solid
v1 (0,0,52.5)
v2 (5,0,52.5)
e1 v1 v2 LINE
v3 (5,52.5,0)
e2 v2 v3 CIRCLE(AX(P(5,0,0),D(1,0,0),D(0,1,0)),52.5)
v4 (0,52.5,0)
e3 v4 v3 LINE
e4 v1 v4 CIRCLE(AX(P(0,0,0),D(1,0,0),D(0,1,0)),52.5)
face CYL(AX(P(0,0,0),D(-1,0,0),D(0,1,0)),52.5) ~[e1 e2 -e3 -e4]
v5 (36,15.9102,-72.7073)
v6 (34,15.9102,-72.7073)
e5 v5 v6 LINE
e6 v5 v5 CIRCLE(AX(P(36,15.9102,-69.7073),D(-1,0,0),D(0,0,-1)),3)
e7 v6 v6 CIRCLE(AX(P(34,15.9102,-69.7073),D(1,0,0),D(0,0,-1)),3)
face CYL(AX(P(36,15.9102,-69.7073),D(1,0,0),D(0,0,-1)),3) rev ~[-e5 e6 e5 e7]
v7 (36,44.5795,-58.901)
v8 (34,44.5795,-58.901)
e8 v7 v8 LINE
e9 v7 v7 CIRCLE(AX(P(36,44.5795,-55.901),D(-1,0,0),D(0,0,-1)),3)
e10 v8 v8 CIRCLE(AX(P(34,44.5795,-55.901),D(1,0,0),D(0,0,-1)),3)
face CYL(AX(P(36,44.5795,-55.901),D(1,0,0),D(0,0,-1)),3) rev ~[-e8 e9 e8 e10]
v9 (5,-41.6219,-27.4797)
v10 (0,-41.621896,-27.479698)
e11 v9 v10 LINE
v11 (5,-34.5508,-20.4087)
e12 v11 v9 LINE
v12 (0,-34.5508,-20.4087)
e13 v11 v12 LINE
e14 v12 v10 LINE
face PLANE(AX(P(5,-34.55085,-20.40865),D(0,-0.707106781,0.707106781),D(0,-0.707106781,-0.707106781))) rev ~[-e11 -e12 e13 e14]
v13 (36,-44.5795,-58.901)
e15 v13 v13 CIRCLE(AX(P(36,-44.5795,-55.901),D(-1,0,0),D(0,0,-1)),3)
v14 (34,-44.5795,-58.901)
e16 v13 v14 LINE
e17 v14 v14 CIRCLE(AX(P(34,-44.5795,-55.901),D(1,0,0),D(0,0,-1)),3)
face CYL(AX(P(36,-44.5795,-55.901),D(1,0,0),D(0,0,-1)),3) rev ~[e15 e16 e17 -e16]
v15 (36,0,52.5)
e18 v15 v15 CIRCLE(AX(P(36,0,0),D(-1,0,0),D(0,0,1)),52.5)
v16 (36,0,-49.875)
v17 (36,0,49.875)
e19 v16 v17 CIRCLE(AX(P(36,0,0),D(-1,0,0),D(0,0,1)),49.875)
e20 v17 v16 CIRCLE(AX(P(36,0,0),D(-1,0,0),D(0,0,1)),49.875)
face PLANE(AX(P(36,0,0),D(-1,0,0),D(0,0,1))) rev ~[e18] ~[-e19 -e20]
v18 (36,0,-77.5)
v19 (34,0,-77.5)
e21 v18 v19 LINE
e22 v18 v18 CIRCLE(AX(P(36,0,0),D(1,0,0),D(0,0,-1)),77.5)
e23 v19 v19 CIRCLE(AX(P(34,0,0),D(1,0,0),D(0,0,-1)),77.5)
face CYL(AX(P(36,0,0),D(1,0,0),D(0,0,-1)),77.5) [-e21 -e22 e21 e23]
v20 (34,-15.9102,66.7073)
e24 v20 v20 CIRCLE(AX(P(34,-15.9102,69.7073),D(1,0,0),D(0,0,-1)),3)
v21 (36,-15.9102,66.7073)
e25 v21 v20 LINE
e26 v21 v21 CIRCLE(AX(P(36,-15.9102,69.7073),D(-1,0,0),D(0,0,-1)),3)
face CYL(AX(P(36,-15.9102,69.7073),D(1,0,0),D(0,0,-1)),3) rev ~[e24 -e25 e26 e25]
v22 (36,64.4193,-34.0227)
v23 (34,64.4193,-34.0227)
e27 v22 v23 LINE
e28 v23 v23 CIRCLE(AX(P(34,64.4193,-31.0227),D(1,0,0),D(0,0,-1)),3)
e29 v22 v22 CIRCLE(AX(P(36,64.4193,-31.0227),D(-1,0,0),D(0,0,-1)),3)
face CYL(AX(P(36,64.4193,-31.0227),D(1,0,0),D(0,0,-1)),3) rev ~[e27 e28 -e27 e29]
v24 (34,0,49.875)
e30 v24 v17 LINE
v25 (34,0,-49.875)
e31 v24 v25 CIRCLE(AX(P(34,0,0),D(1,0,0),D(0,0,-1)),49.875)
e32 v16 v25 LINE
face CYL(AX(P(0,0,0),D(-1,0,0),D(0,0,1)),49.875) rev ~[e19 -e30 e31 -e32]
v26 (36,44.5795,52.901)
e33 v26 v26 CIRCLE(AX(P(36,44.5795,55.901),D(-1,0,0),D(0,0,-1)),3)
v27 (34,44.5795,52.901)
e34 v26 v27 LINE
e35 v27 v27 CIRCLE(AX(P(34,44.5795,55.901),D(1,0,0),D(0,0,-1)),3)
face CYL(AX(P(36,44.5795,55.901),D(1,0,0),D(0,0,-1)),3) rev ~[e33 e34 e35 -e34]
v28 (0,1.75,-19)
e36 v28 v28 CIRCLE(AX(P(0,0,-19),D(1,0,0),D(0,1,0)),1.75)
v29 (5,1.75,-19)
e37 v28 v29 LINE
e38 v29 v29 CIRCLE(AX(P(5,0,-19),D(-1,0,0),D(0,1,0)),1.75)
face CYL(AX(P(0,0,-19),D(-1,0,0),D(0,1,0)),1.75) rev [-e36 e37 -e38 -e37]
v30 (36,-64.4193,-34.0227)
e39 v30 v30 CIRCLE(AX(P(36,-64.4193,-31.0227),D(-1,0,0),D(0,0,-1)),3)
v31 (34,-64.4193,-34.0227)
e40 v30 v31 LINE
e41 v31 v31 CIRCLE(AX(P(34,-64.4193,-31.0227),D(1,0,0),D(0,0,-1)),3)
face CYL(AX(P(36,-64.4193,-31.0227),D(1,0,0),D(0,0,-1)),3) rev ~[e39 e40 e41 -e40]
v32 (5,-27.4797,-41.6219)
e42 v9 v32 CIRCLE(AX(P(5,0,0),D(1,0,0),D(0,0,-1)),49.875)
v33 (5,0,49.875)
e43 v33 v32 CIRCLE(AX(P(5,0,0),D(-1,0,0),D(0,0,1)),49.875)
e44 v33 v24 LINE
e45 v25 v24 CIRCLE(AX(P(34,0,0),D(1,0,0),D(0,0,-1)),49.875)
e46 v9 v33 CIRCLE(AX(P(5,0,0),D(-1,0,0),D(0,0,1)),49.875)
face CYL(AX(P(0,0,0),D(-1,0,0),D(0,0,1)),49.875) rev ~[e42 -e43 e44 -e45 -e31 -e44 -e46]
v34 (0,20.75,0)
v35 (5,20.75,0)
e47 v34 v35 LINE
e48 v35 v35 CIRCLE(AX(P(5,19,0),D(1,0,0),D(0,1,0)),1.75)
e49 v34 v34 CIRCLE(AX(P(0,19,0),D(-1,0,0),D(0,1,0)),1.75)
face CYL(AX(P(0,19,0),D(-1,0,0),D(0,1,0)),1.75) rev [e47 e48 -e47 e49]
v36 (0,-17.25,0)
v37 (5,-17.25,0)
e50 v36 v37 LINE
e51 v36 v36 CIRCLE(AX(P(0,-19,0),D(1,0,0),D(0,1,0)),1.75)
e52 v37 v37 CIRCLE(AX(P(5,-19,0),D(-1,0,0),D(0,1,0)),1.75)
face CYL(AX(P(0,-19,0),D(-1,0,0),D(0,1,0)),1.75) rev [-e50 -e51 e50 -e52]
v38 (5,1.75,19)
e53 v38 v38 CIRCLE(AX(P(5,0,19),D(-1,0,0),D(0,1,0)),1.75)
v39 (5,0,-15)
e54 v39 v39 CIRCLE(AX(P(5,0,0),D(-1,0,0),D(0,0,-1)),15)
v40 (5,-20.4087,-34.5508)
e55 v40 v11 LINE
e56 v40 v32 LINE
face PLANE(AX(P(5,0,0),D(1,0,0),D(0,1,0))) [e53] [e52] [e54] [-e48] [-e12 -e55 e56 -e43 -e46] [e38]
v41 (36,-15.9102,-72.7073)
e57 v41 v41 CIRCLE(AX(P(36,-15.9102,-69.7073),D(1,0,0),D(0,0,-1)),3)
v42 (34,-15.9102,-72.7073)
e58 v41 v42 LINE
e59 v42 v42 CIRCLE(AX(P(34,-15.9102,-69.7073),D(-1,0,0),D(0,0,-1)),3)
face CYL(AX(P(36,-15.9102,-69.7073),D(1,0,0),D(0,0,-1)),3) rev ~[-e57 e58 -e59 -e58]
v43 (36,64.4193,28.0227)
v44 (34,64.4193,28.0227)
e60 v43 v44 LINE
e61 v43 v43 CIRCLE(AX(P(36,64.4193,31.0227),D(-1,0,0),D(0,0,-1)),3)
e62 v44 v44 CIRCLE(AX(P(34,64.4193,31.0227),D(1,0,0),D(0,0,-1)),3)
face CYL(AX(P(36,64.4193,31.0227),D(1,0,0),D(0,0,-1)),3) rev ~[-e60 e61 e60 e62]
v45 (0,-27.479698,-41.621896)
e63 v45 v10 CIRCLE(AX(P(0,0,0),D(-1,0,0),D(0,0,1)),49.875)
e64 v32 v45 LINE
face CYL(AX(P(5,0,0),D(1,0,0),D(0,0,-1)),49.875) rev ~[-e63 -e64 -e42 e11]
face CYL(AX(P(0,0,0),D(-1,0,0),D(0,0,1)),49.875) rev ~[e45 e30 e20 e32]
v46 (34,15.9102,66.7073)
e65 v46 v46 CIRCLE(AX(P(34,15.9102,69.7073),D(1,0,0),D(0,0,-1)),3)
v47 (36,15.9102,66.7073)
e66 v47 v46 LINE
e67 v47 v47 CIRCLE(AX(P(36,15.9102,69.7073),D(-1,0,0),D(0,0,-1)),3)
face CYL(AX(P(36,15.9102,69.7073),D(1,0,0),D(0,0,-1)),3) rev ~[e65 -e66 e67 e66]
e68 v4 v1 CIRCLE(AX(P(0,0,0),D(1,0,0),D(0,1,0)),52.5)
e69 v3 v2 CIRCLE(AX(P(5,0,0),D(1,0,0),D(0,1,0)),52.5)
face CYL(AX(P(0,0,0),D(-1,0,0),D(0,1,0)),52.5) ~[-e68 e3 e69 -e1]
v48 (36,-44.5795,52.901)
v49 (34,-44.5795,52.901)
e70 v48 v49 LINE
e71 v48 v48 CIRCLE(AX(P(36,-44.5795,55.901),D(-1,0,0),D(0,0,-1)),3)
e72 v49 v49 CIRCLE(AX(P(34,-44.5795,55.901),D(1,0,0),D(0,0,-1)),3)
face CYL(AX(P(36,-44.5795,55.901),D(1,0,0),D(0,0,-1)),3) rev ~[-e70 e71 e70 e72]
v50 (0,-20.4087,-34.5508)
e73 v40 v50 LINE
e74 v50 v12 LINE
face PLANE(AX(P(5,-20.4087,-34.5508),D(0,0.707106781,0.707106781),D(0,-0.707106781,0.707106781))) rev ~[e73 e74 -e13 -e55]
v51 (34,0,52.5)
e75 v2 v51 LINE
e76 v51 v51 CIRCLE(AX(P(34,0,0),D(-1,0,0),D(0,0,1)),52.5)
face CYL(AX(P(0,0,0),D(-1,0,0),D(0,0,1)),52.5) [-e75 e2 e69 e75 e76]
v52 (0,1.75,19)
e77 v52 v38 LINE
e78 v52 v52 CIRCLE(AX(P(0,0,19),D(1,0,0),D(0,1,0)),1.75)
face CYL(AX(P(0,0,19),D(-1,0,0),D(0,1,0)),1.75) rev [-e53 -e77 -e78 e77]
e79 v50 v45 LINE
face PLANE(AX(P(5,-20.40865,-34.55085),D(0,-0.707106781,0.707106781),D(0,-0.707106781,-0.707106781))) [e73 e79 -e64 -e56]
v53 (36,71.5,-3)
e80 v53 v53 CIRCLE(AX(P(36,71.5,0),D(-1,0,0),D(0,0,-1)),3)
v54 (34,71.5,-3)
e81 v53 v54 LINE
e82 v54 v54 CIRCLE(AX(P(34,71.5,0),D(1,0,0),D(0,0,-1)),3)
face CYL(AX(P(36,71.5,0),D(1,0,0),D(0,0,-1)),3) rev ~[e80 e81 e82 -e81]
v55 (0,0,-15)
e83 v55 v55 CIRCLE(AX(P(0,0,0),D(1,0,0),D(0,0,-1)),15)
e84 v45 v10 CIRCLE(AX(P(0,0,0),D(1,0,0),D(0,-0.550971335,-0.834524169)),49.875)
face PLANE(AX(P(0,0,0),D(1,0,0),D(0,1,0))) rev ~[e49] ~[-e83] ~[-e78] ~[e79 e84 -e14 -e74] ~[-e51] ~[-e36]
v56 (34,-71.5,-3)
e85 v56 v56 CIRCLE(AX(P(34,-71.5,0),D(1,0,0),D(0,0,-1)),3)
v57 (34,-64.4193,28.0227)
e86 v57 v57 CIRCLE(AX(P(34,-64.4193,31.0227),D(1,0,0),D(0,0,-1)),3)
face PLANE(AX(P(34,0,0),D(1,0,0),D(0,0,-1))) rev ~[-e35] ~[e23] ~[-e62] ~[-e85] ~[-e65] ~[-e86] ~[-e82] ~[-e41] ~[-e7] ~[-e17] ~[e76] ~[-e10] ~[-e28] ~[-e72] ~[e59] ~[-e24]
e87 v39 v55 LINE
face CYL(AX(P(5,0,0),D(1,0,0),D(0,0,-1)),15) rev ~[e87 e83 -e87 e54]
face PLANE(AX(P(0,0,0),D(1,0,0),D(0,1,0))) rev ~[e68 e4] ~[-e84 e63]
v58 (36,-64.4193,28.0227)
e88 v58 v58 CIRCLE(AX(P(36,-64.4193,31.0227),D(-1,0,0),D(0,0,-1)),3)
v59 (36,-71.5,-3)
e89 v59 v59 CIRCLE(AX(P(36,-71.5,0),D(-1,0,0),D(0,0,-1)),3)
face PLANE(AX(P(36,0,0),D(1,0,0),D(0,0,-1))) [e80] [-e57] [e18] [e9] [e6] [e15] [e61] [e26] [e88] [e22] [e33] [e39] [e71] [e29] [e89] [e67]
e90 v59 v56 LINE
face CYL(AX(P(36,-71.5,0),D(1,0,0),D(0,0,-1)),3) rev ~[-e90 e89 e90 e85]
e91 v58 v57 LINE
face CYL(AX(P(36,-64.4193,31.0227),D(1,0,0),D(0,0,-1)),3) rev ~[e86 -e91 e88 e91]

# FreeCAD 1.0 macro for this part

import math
import FreeCAD as App
import Part
import Sketcher
Q = App.Units.Quantity

doc = App.newDocument("Part")
body = doc.addObject("PartDesign::Body", "Body")

sketch1 = body.newObject("Sketcher::SketchObject", "Sketch")
sketch1.AttachmentSupport = (doc.getObject("YZ_Plane"), [""])
sketch1.MapMode = "FlatFace"
sketch1.addGeometry([
    Part.Circle(App.Vector(0, 0, 0), App.Vector(0, 0, 1), 52.5),
    Part.Circle(App.Vector(19, 0, 0), App.Vector(0, 0, 1), 1.8),
    Part.Circle(App.Vector(0, -19, 0), App.Vector(0, 0, 1), 1.8),
    Part.Circle(App.Vector(-19, 0, 0), App.Vector(0, 0, 1), 1.8),
    Part.Circle(App.Vector(0, 19, 0), App.Vector(0, 0, 1), 1.8),
], False)
sketch1.addConstraint([
    Sketcher.Constraint("Coincident", 0, 3, -1, 1),
    Sketcher.Constraint("Equal", 1, 2),
    Sketcher.Constraint("Equal", 2, 3),
    Sketcher.Constraint("Equal", 3, 4),
    Sketcher.Constraint("Symmetric", 1, 3, 3, 3, -1, 1),
    Sketcher.Constraint("Symmetric", 2, 3, 4, 3, -1, 1),
    Sketcher.Constraint("PointOnObject", 1, 3, -1),
    Sketcher.Constraint("PointOnObject", 2, 3, -2),
    Sketcher.Constraint("Diameter", 0, 105.0),
    Sketcher.Constraint("Diameter", 1, 3.5),
    Sketcher.Constraint("DistanceX", 3, 3, 1, 3, 38.0),
    Sketcher.Constraint("DistanceY", 2, 3, 4, 3, 38.0),
])
pad1 = body.newObject("PartDesign::Pad", "Pad")
pad1.Profile = sketch1
pad1.Length = 5

sketch2 = body.newObject("Sketcher::SketchObject", "Sketch001")
sketch2.AttachmentSupport = (doc.getObject("YZ_Plane"), [""])
sketch2.MapMode = "FlatFace"
sketch2.addGeometry([
    Part.Circle(App.Vector(0, 0, 0), App.Vector(0, 0, 1), 52),
    Part.Circle(App.Vector(0, 0, 0), App.Vector(0, 0, 1), 50),
], False)
sketch2.addConstraint([
    Sketcher.Constraint("Coincident", 0, 3, -1, 1),
    Sketcher.Constraint("Coincident", 1, 3, -1, 1),
    Sketcher.Constraint("Diameter", 0, 105.0),
    Sketcher.Constraint("Diameter", 1, 99.75),
])
pad2 = body.newObject("PartDesign::Pad", "Pad001")
pad2.Profile = sketch2
pad2.Length = 36

sketch3 = body.newObject("Sketcher::SketchObject", "Sketch002")
sketch3.AttachmentSupport = (doc.getObject("YZ_Plane"), [""])
sketch3.MapMode = "FlatFace"
sketch3.AttachmentOffset = App.Placement(App.Vector(0, 0, 5), App.Rotation())
sketch3.addGeometry([
    Part.Circle(App.Vector(0, 0, 0), App.Vector(0, 0, 1), 15),
    Part.LineSegment(App.Vector(-20, -35, 0), App.Vector(-35, -20, 0)),
    Part.LineSegment(App.Vector(-35, -20, 0), App.Vector(-42, -27, 0)),
    Part.ArcOfCircle(Part.Circle(App.Vector(0, 0, 0), App.Vector(0, 0, 1), 50), math.radians(-147), math.radians(-123)),
    Part.LineSegment(App.Vector(-27, -42, 0), App.Vector(-20, -35, 0)),
], False)
sketch3.addConstraint([
    Sketcher.Constraint("Coincident", 1, 2, 2, 1),
    Sketcher.Constraint("Coincident", 2, 2, 3, 1),
    Sketcher.Constraint("Coincident", 3, 2, 4, 1),
    Sketcher.Constraint("Coincident", 4, 2, 1, 1),
    Sketcher.Constraint("Coincident", 0, 3, -1, 1),
    Sketcher.Constraint("Coincident", 3, 3, -1, 1),
    Sketcher.Constraint("Perpendicular", 1, 2),
    Sketcher.Constraint("Parallel", 2, 4),
    Sketcher.Constraint("Equal", 2, 4),
    Sketcher.Constraint("Diameter", 0, 30.0),
    Sketcher.Constraint("Angle", 4, Q("45 deg")),
    Sketcher.Constraint("Distance", 2, 10.0),
    Sketcher.Constraint("Distance", 1, 20.0),
    Sketcher.Constraint("Radius", 3, 49.875),
])
pocket1 = body.newObject("PartDesign::Pocket", "Pocket")
pocket1.Profile = sketch3
pocket1.Length = 10

sketch4 = body.newObject("Sketcher::SketchObject", "Sketch003")
sketch4.AttachmentSupport = (doc.getObject("YZ_Plane"), [""])
sketch4.MapMode = "FlatFace"
sketch4.AttachmentOffset = App.Placement(App.Vector(0, 0, 36), App.Rotation())
sketch4.addGeometry([
    Part.Circle(App.Vector(0, 0, 0), App.Vector(0, 0, 1), 77.5),
    Part.Circle(App.Vector(-15.9, -69.7, 0), App.Vector(0, 0, 1), 3),
    Part.Circle(App.Vector(-44.6, -55.9, 0), App.Vector(0, 0, 1), 3),
    Part.Circle(App.Vector(-64.4, -31, 0), App.Vector(0, 0, 1), 3),
    Part.Circle(App.Vector(-71.5, 0, 0), App.Vector(0, 0, 1), 3),
    Part.Circle(App.Vector(-64.4, 31, 0), App.Vector(0, 0, 1), 3),
    Part.Circle(App.Vector(-44.6, 55.9, 0), App.Vector(0, 0, 1), 3),
    Part.Circle(App.Vector(-15.9, 69.7, 0), App.Vector(0, 0, 1), 3),
    Part.Circle(App.Vector(15.9, 69.7, 0), App.Vector(0, 0, 1), 3),
    Part.Circle(App.Vector(44.6, 55.9, 0), App.Vector(0, 0, 1), 3),
    Part.Circle(App.Vector(64.4, 31, 0), App.Vector(0, 0, 1), 3),
    Part.Circle(App.Vector(71.5, 0, 0), App.Vector(0, 0, 1), 3),
    Part.Circle(App.Vector(64.4, -31, 0), App.Vector(0, 0, 1), 3),
    Part.Circle(App.Vector(44.6, -55.9, 0), App.Vector(0, 0, 1), 3),
    Part.Circle(App.Vector(15.9, -69.7, 0), App.Vector(0, 0, 1), 3),
    Part.Circle(App.Vector(0, 0, 0), App.Vector(0, 0, 1), 49.9),
], False)
sketch4.addConstraint([
    Sketcher.Constraint("Coincident", 0, 3, -1, 1),
    Sketcher.Constraint("Coincident", 15, 3, -1, 1),
    Sketcher.Constraint("Equal", 1, 2),
    Sketcher.Constraint("Equal", 2, 3),
    Sketcher.Constraint("Equal", 3, 4),
    Sketcher.Constraint("Equal", 4, 5),
    Sketcher.Constraint("Equal", 5, 6),
    Sketcher.Constraint("Equal", 6, 7),
    Sketcher.Constraint("Equal", 7, 8),
    Sketcher.Constraint("Equal", 8, 9),
    Sketcher.Constraint("Equal", 9, 10),
    Sketcher.Constraint("Equal", 10, 11),
    Sketcher.Constraint("Equal", 11, 12),
    Sketcher.Constraint("Equal", 12, 13),
    Sketcher.Constraint("Equal", 13, 14),
    Sketcher.Constraint("Symmetric", 1, 3, 8, 3, -1, 1),
    Sketcher.Constraint("Symmetric", 2, 3, 9, 3, -1, 1),
    Sketcher.Constraint("Symmetric", 3, 3, 10, 3, -1, 1),
    Sketcher.Constraint("Symmetric", 4, 3, 11, 3, -1, 1),
    Sketcher.Constraint("Symmetric", 5, 3, 12, 3, -1, 1),
    Sketcher.Constraint("Symmetric", 6, 3, 13, 3, -1, 1),
    Sketcher.Constraint("Symmetric", 7, 3, 14, 3, -1, 1),
    Sketcher.Constraint("Symmetric", 7, 3, 8, 3, -2),
    Sketcher.Constraint("Symmetric", 6, 3, 9, 3, -2),
    Sketcher.Constraint("Symmetric", 5, 3, 10, 3, -2),
    Sketcher.Constraint("PointOnObject", 4, 3, -1),
    Sketcher.Constraint("Diameter", 0, 155.0),
    Sketcher.Constraint("Diameter", 1, 6.0),
    Sketcher.Constraint("Diameter", 15, 99.75),
    Sketcher.Constraint("DistanceX", 4, 3, -1, 1, 71.5),
    Sketcher.Constraint("DistanceY", 1, 3, 5, 3, 100.73),
    Sketcher.Constraint("DistanceY", 2, 3, -1, 1, 55.901),
    Sketcher.Constraint("DistanceX", 3, 3, 1, 3, 48.509),
    Sketcher.Constraint("DistanceX", 6, 3, 9, 3, 89.159),
    Sketcher.Constraint("DistanceX", 1, 3, -1, 1, 15.9102),
    Sketcher.Constraint("DistanceY", 1, 3, -1, 1, 69.7073),
])
pad3 = body.newObject("PartDesign::Pad", "Pad002")
pad3.Profile = sketch4
pad3.Length = 2
pad3.Reversed = True

doc.recompute()
